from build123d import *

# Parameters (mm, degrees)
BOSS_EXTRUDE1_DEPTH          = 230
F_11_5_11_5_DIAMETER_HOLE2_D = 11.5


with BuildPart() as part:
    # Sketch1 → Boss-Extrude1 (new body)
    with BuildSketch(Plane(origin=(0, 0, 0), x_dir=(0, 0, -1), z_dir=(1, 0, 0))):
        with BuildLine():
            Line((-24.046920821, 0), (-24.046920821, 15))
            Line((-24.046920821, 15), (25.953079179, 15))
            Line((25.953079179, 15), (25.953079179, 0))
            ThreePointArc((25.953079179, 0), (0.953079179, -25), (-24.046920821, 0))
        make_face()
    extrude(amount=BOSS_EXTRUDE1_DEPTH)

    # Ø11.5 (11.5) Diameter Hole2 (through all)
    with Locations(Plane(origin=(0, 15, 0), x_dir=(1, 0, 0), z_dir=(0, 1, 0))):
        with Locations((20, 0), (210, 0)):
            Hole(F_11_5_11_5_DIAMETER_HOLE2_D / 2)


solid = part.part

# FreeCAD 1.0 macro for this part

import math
import FreeCAD as App
import Part
import Sketcher

doc = App.newDocument("Part")
body = doc.addObject("PartDesign::Body", "Body")

sketch1 = body.newObject("Sketcher::SketchObject", "Sketch")
sketch1.AttachmentSupport = (doc.getObject("YZ_Plane"), [""])
sketch1.MapMode = "FlatFace"
sketch1.addGeometry([
    Part.LineSegment(App.Vector(15, 24, 0), App.Vector(0, 24, 0)),
    Part.ArcOfCircle(Part.Circle(App.Vector(0, -1, 0), App.Vector(0, 0, 1), 25), math.radians(90), math.radians(270)),
    Part.LineSegment(App.Vector(0, -26, 0), App.Vector(15, -26, 0)),
    Part.LineSegment(App.Vector(15, -26, 0), App.Vector(15, 24, 0)),
], False)
sketch1.addConstraint([
    Sketcher.Constraint("Tangent", 0, 2, 1, 1),
    Sketcher.Constraint("Tangent", 1, 2, 2, 1),
    Sketcher.Constraint("Coincident", 2, 2, 3, 1),
    Sketcher.Constraint("Coincident", 3, 2, 0, 1),
    Sketcher.Constraint("Horizontal", 0),
    Sketcher.Constraint("Horizontal", 2),
    Sketcher.Constraint("Vertical", 3),
    Sketcher.Constraint("PointOnObject", 1, 3, -2),
    Sketcher.Constraint("Radius", 1, 25.0),
    Sketcher.Constraint("DistanceX", 0, 2, 0, 1, 15.0),
    Sketcher.Constraint("DistanceY", 1, 3, -1, 1, 0.953079),
])
pad1 = body.newObject("PartDesign::Pad", "Pad")
pad1.Profile = sketch1
pad1.Length = 230

sketch2 = body.newObject("Sketcher::SketchObject", "Sketch001")
sketch2.AttachmentSupport = (doc.getObject("XZ_Plane"), [""])
sketch2.MapMode = "FlatFace"
sketch2.AttachmentOffset = App.Placement(App.Vector(0, 0, -15), App.Rotation())
sketch2.addGeometry([
    Part.Circle(App.Vector(20, 0, 0), App.Vector(0, 0, 1), 6),
    Part.Circle(App.Vector(210, 0, 0), App.Vector(0, 0, 1), 6),
], False)
sketch2.addConstraint([
    Sketcher.Constraint("Equal", 0, 1),
    Sketcher.Constraint("PointOnObject", 0, 3, -1),
    Sketcher.Constraint("PointOnObject", 1, 3, -1),
    Sketcher.Constraint("Diameter", 0, 11.5),
    Sketcher.Constraint("DistanceX", -1, 1, 0, 3, 20.0),
    Sketcher.Constraint("DistanceX", -1, 1, 1, 3, 210.0),
])
doc.recompute()
hole = body.newObject("PartDesign::Hole", "Hole")
hole.Profile = sketch2
hole.ThreadType = "None"
hole.Diameter = 11.5
hole.DepthType = "ThroughAll"
hole.Reversed = True

doc.recompute()
